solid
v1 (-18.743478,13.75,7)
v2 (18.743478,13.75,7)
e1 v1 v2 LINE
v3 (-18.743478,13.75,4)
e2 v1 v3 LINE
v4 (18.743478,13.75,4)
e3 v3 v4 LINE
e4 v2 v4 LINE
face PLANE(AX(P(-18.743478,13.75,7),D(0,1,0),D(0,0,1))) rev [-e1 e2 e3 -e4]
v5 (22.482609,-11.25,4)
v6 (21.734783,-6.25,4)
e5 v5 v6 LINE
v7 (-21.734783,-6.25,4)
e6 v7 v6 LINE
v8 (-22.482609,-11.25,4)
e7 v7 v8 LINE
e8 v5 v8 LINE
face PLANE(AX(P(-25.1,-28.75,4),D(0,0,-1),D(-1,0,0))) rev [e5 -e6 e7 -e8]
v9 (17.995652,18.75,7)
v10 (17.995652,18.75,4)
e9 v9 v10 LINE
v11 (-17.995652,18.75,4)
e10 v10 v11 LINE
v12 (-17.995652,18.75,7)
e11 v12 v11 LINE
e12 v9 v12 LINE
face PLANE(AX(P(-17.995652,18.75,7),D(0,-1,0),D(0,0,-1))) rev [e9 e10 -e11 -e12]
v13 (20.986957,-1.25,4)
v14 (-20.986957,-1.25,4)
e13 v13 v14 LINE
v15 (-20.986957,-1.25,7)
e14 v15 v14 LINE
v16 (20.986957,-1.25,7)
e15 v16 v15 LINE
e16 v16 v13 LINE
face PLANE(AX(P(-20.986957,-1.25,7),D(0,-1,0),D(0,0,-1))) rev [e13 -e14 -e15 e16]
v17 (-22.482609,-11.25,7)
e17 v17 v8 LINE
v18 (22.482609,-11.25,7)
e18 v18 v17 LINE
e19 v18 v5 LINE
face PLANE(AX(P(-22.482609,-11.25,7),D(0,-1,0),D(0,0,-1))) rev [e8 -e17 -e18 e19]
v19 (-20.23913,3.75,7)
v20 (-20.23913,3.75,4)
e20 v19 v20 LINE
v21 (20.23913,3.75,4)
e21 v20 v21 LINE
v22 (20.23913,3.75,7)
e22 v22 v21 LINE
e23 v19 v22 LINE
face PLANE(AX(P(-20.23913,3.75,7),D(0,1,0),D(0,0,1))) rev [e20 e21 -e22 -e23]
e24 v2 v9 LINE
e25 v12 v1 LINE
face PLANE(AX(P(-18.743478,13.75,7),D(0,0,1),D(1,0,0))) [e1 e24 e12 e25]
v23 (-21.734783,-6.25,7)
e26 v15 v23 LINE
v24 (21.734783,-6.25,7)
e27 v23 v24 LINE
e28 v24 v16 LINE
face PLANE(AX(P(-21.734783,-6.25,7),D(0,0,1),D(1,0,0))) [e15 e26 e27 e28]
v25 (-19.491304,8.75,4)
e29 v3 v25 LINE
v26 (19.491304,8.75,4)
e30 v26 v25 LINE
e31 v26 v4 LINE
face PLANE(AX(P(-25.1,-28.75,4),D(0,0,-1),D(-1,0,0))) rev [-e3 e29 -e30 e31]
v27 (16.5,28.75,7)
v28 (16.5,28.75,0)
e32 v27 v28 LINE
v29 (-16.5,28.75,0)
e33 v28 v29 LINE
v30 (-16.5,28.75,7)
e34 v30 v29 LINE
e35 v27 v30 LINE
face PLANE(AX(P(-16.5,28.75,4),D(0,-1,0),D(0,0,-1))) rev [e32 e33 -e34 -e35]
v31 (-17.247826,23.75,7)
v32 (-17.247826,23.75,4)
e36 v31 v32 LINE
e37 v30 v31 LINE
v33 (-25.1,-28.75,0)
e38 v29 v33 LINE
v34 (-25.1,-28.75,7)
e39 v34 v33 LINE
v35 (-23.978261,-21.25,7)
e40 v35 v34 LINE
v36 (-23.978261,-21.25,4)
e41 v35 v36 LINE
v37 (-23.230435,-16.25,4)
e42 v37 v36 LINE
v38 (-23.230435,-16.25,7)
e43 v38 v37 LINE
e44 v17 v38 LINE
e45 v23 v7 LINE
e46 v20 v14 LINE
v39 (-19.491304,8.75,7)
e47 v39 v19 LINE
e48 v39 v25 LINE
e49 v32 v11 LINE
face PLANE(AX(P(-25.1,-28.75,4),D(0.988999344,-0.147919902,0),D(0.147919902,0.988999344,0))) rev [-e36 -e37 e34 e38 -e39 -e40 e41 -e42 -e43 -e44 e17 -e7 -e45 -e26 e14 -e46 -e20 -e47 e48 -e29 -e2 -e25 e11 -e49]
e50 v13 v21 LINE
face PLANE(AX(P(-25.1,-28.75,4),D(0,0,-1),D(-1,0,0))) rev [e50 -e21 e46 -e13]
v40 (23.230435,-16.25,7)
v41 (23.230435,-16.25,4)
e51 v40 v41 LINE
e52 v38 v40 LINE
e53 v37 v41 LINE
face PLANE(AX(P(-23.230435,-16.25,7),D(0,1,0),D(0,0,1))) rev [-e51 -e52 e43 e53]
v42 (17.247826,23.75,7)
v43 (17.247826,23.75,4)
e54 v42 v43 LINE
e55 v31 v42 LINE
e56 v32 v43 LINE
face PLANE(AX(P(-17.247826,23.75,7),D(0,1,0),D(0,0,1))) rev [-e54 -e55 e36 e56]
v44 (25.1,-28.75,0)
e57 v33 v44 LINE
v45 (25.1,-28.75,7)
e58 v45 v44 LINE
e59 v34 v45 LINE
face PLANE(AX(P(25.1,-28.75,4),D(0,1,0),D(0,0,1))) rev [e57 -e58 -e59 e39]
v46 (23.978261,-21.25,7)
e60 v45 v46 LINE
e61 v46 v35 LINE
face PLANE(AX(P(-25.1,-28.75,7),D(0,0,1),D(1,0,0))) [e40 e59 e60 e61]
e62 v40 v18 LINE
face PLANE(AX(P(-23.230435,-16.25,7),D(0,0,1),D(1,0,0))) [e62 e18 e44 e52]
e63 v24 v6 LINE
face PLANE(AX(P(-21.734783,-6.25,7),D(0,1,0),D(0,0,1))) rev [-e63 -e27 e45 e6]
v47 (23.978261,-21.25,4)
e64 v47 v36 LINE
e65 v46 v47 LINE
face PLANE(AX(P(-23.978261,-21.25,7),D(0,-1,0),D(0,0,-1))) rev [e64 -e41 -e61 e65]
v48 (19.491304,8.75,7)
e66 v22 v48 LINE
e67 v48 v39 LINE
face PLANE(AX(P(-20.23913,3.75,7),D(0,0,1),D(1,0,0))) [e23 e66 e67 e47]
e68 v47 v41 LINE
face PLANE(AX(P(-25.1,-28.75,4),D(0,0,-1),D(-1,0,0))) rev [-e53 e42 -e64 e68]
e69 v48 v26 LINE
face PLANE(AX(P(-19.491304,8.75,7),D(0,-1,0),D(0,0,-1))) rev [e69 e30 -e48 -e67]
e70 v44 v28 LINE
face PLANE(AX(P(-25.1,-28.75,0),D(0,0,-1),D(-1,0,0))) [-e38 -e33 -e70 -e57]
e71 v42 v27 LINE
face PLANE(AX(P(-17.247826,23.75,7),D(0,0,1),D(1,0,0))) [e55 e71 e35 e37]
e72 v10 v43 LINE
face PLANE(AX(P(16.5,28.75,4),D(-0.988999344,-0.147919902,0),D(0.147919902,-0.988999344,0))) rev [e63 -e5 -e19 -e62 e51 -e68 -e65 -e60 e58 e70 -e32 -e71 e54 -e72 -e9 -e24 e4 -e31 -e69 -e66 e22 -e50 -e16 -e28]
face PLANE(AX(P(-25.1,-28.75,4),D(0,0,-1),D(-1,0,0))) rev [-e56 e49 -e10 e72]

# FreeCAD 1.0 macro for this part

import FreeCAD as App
import Part
import Sketcher
Q = App.Units.Quantity


def add_polygon(sketch, points):
    """Adds a closed chain of lines whose ends are joined by coincident constraints."""
    first, n = sketch.GeometryCount, len(points)
    for a, b in zip(points, points[1:] + points[:1]):
        sketch.addGeometry(Part.LineSegment(App.Vector(*a, 0), App.Vector(*b, 0)), False)
    for i in range(n):
        sketch.addConstraint(Sketcher.Constraint("Coincident", first + i, 2, first + (i + 1) % n, 1))

doc = App.newDocument("Part")
params = doc.addObject("Spreadsheet::Sheet", "Params")
for row, (alias, value) in enumerate([
    ("sketch1_width", "33 mm"),
    ("sketch1_width2", "50.2 mm"),
    ("pad1_length", "4 mm"),
    ("sketch2_width", "33 mm"),
    ("sketch2_width2", "50.2 mm"),
    ("pad2_length", "3 mm"),
], start=1):
    params.set(f"A{row}", alias)
    params.set(f"B{row}", "=" + value)
    params.setAlias(f"B{row}", alias)

body = doc.addObject("PartDesign::Body", "Body")

sketch1 = body.newObject("Sketcher::SketchObject", "Sketch")
sketch1.AttachmentSupport = (doc.getObject("XY_Plane"), [""])
sketch1.MapMode = "FlatFace"
add_polygon(sketch1, [(-16, 29), (-25, -29), (25, -29), (16, 29)])
sketch1.addConstraint([
    Sketcher.Constraint("Horizontal", 1),
    Sketcher.Constraint("Horizontal", 3),
    Sketcher.Constraint("Equal", 0, 2),
    Sketcher.Constraint("DistanceX", 3, 2, 3, 1, Q("33 mm")),
    Sketcher.Constraint("DistanceX", 1, 1, 1, 2, Q("50.2 mm")),
    Sketcher.Constraint("DistanceX", 0, 2, -1, 1, Q("25.1 mm")),
    Sketcher.Constraint("DistanceY", 1, 2, 2, 2, Q("57.5 mm")),
    Sketcher.Constraint("DistanceY", 0, 2, -1, 1, Q("28.75 mm")),
])
sketch1.setExpression("Constraints[7]", "Params.sketch1_width")
sketch1.setExpression("Constraints[8]", "Params.sketch1_width2")
pad1 = body.newObject("PartDesign::Pad", "Pad")
pad1.Profile = sketch1
pad1.setExpression("Length", "Params.pad1_length")

sketch2 = body.newObject("Sketcher::SketchObject", "Sketch001")
sketch2.AttachmentSupport = (doc.getObject("XY_Plane"), [""])
sketch2.MapMode = "FlatFace"
sketch2.AttachmentOffset = App.Placement(App.Vector(0, 0, 4), App.Rotation())
add_polygon(sketch2, [(-17, 24), (17, 24), (16, 29), (-16, 29)])
add_polygon(sketch2, [(18, 19), (-18, 19), (-19, 14), (19, 14)])
add_polygon(sketch2, [(19, 9), (-19, 9), (-20, 4), (20, 4)])
add_polygon(sketch2, [(-25, -29), (25, -29), (24, -21), (-24, -21)])
add_polygon(sketch2, [(21, -1), (-21, -1), (-22, -6), (22, -6)])
add_polygon(sketch2, [(22, -11), (-22, -11), (-23, -16), (23, -16)])
sketch2.addConstraint([
    Sketcher.Constraint("Horizontal", 0),
    Sketcher.Constraint("Horizontal", 2),
    Sketcher.Constraint("Horizontal", 4),
    Sketcher.Constraint("Horizontal", 6),
    Sketcher.Constraint("Horizontal", 8),
    Sketcher.Constraint("Horizontal", 10),
    Sketcher.Constraint("Horizontal", 12),
    Sketcher.Constraint("Horizontal", 14),
    Sketcher.Constraint("Horizontal", 16),
    Sketcher.Constraint("Horizontal", 18),
    Sketcher.Constraint("Horizontal", 20),
    Sketcher.Constraint("Horizontal", 22),
    Sketcher.Constraint("Parallel", 3, 5),
    Sketcher.Constraint("Parallel", 1, 7),
    Sketcher.Constraint("Parallel", 5, 9),
    Sketcher.Constraint("Parallel", 7, 11),
    Sketcher.Constraint("Parallel", 11, 13),
    Sketcher.Constraint("Parallel", 9, 15),
    Sketcher.Constraint("Parallel", 15, 17),
    Sketcher.Constraint("Parallel", 13, 19),
    Sketcher.Constraint("Parallel", 17, 21),
    Sketcher.Constraint("Parallel", 19, 23),
    Sketcher.Constraint("Equal", 1, 3),
    Sketcher.Constraint("Equal", 3, 5),
    Sketcher.Constraint("Equal", 7, 9),
    Sketcher.Constraint("Equal", 11, 17),
    Sketcher.Constraint("Equal", 19, 21),
    Sketcher.Constraint("DistanceX", 2, 2, 2, 1, Q("33 mm")),
    Sketcher.Constraint("DistanceX", 12, 1, 12, 2, Q("50.2 mm")),
    Sketcher.Constraint("DistanceY", 0, 2, 1, 2, Q("5 mm")),
    Sketcher.Constraint("DistanceY", 4, 2, 3, 2, Q("5 mm")),
    Sketcher.Constraint("DistanceY", 8, 2, 5, 2, Q("5 mm")),
    Sketcher.Constraint("DistanceY", 13, 2, 10, 2, Q("25 mm")),
    Sketcher.Constraint("DistanceY", 16, 2, 9, 2, Q("5 mm")),
    Sketcher.Constraint("DistanceY", 20, 2, 17, 2, Q("5 mm")),
    Sketcher.Constraint("DistanceX", -1, 1, 1, 2, Q("16.5 mm")),
    Sketcher.Constraint("DistanceX", -1, 1, 12, 2, Q("25.1 mm")),
    Sketcher.Constraint("DistanceY", 12, 2, 10, 2, Q("32.5 mm")),
    Sketcher.Constraint("DistanceY", -1, 1, 0, 2, Q("23.75 mm")),
    Sketcher.Constraint("DistanceX", 8, 2, 8, 1, Q("38.982609 mm")),
    Sketcher.Constraint("DistanceX", 10, 1, 10, 2, Q("40.478261 mm")),
    Sketcher.Constraint("DistanceX", 22, 1, 22, 2, Q("46.46087 mm")),
    Sketcher.Constraint("DistanceX", 4, 2, 4, 1, Q("35.991304 mm")),
    Sketcher.Constraint("DistanceX", 16, 2, 16, 1, Q("41.973913 mm")),
    Sketcher.Constraint("DistanceX", 5, 2, -1, 1, Q("18.743478 mm")),
    Sketcher.Constraint("DistanceX", 9, 2, -1, 1, Q("20.23913 mm")),
    Sketcher.Constraint("DistanceX", 20, 2, -1, 1, Q("22.482609 mm")),
    Sketcher.Constraint("DistanceX", 16, 2, 5, 2, Q("2.243478 mm")),
])
sketch2.setExpression("Constraints[51]", "Params.sketch2_width")
sketch2.setExpression("Constraints[52]", "Params.sketch2_width2")
pad2 = body.newObject("PartDesign::Pad", "Pad001")
pad2.Profile = sketch2
pad2.setExpression("Length", "Params.pad2_length")

doc.recompute()
